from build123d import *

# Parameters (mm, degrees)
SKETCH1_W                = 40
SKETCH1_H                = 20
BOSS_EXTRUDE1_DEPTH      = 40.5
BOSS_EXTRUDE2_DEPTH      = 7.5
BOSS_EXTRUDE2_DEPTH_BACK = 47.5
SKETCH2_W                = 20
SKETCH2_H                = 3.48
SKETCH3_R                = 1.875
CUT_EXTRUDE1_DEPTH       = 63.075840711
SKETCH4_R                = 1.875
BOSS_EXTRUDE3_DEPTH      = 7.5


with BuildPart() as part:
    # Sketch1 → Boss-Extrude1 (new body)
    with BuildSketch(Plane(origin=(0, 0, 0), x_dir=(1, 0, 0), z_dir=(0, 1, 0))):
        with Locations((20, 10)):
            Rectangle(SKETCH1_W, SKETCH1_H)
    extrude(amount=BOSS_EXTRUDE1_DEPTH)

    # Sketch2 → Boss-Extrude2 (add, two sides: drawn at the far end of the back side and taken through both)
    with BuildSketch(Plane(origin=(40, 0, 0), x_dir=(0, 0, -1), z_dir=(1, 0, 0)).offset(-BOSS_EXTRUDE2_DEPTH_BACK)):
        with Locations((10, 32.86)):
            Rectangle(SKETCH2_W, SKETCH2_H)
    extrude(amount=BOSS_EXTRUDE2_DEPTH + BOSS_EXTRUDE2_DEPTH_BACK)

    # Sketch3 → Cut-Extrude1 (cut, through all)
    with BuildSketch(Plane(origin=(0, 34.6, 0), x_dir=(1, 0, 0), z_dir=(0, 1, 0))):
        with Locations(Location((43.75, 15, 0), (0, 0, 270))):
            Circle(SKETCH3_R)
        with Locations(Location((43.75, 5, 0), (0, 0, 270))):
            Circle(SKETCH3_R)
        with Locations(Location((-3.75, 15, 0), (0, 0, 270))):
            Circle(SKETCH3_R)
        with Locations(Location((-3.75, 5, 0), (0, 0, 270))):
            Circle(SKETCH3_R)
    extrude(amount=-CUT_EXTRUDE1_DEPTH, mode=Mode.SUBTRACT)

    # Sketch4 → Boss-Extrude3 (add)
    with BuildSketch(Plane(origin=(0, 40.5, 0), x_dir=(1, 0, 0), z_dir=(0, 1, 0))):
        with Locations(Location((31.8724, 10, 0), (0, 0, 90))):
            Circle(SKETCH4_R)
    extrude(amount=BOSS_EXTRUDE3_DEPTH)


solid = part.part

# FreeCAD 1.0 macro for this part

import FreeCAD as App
import Part
import Sketcher

doc = App.newDocument("Part")
body = doc.addObject("PartDesign::Body", "Body")

sketch1 = body.newObject("Sketcher::SketchObject", "Sketch")
sketch1.AttachmentSupport = (doc.getObject("XZ_Plane"), [""])
sketch1.MapMode = "FlatFace"
sketch1.addGeometry([
    Part.LineSegment(App.Vector(0, -20, 0), App.Vector(0, 0, 0)),
    Part.LineSegment(App.Vector(0, 0, 0), App.Vector(40, 0, 0)),
    Part.LineSegment(App.Vector(40, 0, 0), App.Vector(40, -20, 0)),
    Part.LineSegment(App.Vector(40, -20, 0), App.Vector(0, -20, 0)),
], False)
sketch1.addConstraint([
    Sketcher.Constraint("Coincident", 0, 2, 1, 1),
    Sketcher.Constraint("Coincident", 1, 2, 2, 1),
    Sketcher.Constraint("Coincident", 2, 2, 3, 1),
    Sketcher.Constraint("Coincident", 3, 2, 0, 1),
    Sketcher.Constraint("Vertical", 0),
    Sketcher.Constraint("Horizontal", 1),
    Sketcher.Constraint("Vertical", 2),
    Sketcher.Constraint("Horizontal", 3),
    Sketcher.Constraint("Coincident", 0, 2, -1, 1),
    Sketcher.Constraint("DistanceX", 1, 1, 1, 2, 40.0),
    Sketcher.Constraint("DistanceY", 0, 1, 0, 2, 20.0),
])
pad1 = body.newObject("PartDesign::Pad", "Pad")
pad1.Profile = sketch1
pad1.Length = 40.5
pad1.Reversed = True

sketch2 = body.newObject("Sketcher::SketchObject", "Sketch001")
sketch2.AttachmentSupport = (doc.getObject("YZ_Plane"), [""])
sketch2.MapMode = "FlatFace"
sketch2.AttachmentOffset = App.Placement(App.Vector(0, 0, 40), App.Rotation())
sketch2.addGeometry([
    Part.LineSegment(App.Vector(34.6, 0, 0), App.Vector(31.1, 0, 0)),
    Part.LineSegment(App.Vector(31.1, 0, 0), App.Vector(31.1, -20, 0)),
    Part.LineSegment(App.Vector(31.1, -20, 0), App.Vector(34.6, -20, 0)),
    Part.LineSegment(App.Vector(34.6, -20, 0), App.Vector(34.6, 0, 0)),
], False)
sketch2.addConstraint([
    Sketcher.Constraint("Coincident", 0, 2, 1, 1),
    Sketcher.Constraint("Coincident", 1, 2, 2, 1),
    Sketcher.Constraint("Coincident", 2, 2, 3, 1),
    Sketcher.Constraint("Coincident", 3, 2, 0, 1),
    Sketcher.Constraint("Horizontal", 0),
    Sketcher.Constraint("Vertical", 1),
    Sketcher.Constraint("Horizontal", 2),
    Sketcher.Constraint("Vertical", 3),
    Sketcher.Constraint("PointOnObject", 0, 2, -1),
    Sketcher.Constraint("DistanceY", 1, 2, 1, 1, 20.0),
    Sketcher.Constraint("DistanceX", 0, 2, 0, 1, 3.48),
    Sketcher.Constraint("DistanceX", -1, 1, 2, 2, 34.6),
])
pad2 = body.newObject("PartDesign::Pad", "Pad001")
pad2.Profile = sketch2
pad2.Type = "TwoLengths"
pad2.Length = 7.5
pad2.Length2 = 47.5

sketch3 = body.newObject("Sketcher::SketchObject", "Sketch002")
sketch3.AttachmentSupport = (doc.getObject("XZ_Plane"), [""])
sketch3.MapMode = "FlatFace"
sketch3.AttachmentOffset = App.Placement(App.Vector(0, 0, -34.6), App.Rotation())
sketch3.addGeometry([
    Part.Circle(App.Vector(43.8, -15, 0), App.Vector(0, 0, 1), 1.9),
    Part.Circle(App.Vector(43.8, -5, 0), App.Vector(0, 0, 1), 1.9),
    Part.Circle(App.Vector(-3.8, -15, 0), App.Vector(0, 0, 1), 1.9),
    Part.Circle(App.Vector(-3.8, -5, 0), App.Vector(0, 0, 1), 1.9),
], False)
sketch3.addConstraint([
    Sketcher.Constraint("Equal", 0, 1),
    Sketcher.Constraint("Equal", 1, 2),
    Sketcher.Constraint("Equal", 2, 3),
    Sketcher.Constraint("Horizontal", 0, 3, 2, 3),
    Sketcher.Constraint("Horizontal", 1, 3, 3, 3),
    Sketcher.Constraint("Vertical", 0, 3, 1, 3),
    Sketcher.Constraint("Vertical", 2, 3, 3, 3),
    Sketcher.Constraint("Diameter", 0, 3.75),
    Sketcher.Constraint("DistanceY", 0, 3, -1, 1, 15.0),
    Sketcher.Constraint("DistanceY", 1, 3, -1, 1, 5.0),
    Sketcher.Constraint("DistanceX", 2, 3, 0, 3, 47.5),
    Sketcher.Constraint("DistanceX", -1, 1, 0, 3, 43.75),
])
pocket1 = body.newObject("PartDesign::Pocket", "Pocket")
pocket1.Profile = sketch3
pocket1.Type = "ThroughAll"
pocket1.Reversed = True

sketch4 = body.newObject("Sketcher::SketchObject", "Sketch003")
sketch4.AttachmentSupport = (doc.getObject("XZ_Plane"), [""])
sketch4.MapMode = "FlatFace"
sketch4.AttachmentOffset = App.Placement(App.Vector(0, 0, -40.5), App.Rotation())
sketch4.addGeometry(Part.Circle(App.Vector(31.9, -10, 0), App.Vector(0, 0, 1), 1.9), False)
sketch4.addConstraint([
    Sketcher.Constraint("Diameter", 0, 3.75),
    Sketcher.Constraint("DistanceY", 0, 3, -1, 1, 10.0),
    Sketcher.Constraint("DistanceX", -1, 1, 0, 3, 31.8724),
])
pad3 = body.newObject("PartDesign::Pad", "Pad002")
pad3.Profile = sketch4
pad3.Length = 7.5
pad3.Reversed = True

doc.recompute()
